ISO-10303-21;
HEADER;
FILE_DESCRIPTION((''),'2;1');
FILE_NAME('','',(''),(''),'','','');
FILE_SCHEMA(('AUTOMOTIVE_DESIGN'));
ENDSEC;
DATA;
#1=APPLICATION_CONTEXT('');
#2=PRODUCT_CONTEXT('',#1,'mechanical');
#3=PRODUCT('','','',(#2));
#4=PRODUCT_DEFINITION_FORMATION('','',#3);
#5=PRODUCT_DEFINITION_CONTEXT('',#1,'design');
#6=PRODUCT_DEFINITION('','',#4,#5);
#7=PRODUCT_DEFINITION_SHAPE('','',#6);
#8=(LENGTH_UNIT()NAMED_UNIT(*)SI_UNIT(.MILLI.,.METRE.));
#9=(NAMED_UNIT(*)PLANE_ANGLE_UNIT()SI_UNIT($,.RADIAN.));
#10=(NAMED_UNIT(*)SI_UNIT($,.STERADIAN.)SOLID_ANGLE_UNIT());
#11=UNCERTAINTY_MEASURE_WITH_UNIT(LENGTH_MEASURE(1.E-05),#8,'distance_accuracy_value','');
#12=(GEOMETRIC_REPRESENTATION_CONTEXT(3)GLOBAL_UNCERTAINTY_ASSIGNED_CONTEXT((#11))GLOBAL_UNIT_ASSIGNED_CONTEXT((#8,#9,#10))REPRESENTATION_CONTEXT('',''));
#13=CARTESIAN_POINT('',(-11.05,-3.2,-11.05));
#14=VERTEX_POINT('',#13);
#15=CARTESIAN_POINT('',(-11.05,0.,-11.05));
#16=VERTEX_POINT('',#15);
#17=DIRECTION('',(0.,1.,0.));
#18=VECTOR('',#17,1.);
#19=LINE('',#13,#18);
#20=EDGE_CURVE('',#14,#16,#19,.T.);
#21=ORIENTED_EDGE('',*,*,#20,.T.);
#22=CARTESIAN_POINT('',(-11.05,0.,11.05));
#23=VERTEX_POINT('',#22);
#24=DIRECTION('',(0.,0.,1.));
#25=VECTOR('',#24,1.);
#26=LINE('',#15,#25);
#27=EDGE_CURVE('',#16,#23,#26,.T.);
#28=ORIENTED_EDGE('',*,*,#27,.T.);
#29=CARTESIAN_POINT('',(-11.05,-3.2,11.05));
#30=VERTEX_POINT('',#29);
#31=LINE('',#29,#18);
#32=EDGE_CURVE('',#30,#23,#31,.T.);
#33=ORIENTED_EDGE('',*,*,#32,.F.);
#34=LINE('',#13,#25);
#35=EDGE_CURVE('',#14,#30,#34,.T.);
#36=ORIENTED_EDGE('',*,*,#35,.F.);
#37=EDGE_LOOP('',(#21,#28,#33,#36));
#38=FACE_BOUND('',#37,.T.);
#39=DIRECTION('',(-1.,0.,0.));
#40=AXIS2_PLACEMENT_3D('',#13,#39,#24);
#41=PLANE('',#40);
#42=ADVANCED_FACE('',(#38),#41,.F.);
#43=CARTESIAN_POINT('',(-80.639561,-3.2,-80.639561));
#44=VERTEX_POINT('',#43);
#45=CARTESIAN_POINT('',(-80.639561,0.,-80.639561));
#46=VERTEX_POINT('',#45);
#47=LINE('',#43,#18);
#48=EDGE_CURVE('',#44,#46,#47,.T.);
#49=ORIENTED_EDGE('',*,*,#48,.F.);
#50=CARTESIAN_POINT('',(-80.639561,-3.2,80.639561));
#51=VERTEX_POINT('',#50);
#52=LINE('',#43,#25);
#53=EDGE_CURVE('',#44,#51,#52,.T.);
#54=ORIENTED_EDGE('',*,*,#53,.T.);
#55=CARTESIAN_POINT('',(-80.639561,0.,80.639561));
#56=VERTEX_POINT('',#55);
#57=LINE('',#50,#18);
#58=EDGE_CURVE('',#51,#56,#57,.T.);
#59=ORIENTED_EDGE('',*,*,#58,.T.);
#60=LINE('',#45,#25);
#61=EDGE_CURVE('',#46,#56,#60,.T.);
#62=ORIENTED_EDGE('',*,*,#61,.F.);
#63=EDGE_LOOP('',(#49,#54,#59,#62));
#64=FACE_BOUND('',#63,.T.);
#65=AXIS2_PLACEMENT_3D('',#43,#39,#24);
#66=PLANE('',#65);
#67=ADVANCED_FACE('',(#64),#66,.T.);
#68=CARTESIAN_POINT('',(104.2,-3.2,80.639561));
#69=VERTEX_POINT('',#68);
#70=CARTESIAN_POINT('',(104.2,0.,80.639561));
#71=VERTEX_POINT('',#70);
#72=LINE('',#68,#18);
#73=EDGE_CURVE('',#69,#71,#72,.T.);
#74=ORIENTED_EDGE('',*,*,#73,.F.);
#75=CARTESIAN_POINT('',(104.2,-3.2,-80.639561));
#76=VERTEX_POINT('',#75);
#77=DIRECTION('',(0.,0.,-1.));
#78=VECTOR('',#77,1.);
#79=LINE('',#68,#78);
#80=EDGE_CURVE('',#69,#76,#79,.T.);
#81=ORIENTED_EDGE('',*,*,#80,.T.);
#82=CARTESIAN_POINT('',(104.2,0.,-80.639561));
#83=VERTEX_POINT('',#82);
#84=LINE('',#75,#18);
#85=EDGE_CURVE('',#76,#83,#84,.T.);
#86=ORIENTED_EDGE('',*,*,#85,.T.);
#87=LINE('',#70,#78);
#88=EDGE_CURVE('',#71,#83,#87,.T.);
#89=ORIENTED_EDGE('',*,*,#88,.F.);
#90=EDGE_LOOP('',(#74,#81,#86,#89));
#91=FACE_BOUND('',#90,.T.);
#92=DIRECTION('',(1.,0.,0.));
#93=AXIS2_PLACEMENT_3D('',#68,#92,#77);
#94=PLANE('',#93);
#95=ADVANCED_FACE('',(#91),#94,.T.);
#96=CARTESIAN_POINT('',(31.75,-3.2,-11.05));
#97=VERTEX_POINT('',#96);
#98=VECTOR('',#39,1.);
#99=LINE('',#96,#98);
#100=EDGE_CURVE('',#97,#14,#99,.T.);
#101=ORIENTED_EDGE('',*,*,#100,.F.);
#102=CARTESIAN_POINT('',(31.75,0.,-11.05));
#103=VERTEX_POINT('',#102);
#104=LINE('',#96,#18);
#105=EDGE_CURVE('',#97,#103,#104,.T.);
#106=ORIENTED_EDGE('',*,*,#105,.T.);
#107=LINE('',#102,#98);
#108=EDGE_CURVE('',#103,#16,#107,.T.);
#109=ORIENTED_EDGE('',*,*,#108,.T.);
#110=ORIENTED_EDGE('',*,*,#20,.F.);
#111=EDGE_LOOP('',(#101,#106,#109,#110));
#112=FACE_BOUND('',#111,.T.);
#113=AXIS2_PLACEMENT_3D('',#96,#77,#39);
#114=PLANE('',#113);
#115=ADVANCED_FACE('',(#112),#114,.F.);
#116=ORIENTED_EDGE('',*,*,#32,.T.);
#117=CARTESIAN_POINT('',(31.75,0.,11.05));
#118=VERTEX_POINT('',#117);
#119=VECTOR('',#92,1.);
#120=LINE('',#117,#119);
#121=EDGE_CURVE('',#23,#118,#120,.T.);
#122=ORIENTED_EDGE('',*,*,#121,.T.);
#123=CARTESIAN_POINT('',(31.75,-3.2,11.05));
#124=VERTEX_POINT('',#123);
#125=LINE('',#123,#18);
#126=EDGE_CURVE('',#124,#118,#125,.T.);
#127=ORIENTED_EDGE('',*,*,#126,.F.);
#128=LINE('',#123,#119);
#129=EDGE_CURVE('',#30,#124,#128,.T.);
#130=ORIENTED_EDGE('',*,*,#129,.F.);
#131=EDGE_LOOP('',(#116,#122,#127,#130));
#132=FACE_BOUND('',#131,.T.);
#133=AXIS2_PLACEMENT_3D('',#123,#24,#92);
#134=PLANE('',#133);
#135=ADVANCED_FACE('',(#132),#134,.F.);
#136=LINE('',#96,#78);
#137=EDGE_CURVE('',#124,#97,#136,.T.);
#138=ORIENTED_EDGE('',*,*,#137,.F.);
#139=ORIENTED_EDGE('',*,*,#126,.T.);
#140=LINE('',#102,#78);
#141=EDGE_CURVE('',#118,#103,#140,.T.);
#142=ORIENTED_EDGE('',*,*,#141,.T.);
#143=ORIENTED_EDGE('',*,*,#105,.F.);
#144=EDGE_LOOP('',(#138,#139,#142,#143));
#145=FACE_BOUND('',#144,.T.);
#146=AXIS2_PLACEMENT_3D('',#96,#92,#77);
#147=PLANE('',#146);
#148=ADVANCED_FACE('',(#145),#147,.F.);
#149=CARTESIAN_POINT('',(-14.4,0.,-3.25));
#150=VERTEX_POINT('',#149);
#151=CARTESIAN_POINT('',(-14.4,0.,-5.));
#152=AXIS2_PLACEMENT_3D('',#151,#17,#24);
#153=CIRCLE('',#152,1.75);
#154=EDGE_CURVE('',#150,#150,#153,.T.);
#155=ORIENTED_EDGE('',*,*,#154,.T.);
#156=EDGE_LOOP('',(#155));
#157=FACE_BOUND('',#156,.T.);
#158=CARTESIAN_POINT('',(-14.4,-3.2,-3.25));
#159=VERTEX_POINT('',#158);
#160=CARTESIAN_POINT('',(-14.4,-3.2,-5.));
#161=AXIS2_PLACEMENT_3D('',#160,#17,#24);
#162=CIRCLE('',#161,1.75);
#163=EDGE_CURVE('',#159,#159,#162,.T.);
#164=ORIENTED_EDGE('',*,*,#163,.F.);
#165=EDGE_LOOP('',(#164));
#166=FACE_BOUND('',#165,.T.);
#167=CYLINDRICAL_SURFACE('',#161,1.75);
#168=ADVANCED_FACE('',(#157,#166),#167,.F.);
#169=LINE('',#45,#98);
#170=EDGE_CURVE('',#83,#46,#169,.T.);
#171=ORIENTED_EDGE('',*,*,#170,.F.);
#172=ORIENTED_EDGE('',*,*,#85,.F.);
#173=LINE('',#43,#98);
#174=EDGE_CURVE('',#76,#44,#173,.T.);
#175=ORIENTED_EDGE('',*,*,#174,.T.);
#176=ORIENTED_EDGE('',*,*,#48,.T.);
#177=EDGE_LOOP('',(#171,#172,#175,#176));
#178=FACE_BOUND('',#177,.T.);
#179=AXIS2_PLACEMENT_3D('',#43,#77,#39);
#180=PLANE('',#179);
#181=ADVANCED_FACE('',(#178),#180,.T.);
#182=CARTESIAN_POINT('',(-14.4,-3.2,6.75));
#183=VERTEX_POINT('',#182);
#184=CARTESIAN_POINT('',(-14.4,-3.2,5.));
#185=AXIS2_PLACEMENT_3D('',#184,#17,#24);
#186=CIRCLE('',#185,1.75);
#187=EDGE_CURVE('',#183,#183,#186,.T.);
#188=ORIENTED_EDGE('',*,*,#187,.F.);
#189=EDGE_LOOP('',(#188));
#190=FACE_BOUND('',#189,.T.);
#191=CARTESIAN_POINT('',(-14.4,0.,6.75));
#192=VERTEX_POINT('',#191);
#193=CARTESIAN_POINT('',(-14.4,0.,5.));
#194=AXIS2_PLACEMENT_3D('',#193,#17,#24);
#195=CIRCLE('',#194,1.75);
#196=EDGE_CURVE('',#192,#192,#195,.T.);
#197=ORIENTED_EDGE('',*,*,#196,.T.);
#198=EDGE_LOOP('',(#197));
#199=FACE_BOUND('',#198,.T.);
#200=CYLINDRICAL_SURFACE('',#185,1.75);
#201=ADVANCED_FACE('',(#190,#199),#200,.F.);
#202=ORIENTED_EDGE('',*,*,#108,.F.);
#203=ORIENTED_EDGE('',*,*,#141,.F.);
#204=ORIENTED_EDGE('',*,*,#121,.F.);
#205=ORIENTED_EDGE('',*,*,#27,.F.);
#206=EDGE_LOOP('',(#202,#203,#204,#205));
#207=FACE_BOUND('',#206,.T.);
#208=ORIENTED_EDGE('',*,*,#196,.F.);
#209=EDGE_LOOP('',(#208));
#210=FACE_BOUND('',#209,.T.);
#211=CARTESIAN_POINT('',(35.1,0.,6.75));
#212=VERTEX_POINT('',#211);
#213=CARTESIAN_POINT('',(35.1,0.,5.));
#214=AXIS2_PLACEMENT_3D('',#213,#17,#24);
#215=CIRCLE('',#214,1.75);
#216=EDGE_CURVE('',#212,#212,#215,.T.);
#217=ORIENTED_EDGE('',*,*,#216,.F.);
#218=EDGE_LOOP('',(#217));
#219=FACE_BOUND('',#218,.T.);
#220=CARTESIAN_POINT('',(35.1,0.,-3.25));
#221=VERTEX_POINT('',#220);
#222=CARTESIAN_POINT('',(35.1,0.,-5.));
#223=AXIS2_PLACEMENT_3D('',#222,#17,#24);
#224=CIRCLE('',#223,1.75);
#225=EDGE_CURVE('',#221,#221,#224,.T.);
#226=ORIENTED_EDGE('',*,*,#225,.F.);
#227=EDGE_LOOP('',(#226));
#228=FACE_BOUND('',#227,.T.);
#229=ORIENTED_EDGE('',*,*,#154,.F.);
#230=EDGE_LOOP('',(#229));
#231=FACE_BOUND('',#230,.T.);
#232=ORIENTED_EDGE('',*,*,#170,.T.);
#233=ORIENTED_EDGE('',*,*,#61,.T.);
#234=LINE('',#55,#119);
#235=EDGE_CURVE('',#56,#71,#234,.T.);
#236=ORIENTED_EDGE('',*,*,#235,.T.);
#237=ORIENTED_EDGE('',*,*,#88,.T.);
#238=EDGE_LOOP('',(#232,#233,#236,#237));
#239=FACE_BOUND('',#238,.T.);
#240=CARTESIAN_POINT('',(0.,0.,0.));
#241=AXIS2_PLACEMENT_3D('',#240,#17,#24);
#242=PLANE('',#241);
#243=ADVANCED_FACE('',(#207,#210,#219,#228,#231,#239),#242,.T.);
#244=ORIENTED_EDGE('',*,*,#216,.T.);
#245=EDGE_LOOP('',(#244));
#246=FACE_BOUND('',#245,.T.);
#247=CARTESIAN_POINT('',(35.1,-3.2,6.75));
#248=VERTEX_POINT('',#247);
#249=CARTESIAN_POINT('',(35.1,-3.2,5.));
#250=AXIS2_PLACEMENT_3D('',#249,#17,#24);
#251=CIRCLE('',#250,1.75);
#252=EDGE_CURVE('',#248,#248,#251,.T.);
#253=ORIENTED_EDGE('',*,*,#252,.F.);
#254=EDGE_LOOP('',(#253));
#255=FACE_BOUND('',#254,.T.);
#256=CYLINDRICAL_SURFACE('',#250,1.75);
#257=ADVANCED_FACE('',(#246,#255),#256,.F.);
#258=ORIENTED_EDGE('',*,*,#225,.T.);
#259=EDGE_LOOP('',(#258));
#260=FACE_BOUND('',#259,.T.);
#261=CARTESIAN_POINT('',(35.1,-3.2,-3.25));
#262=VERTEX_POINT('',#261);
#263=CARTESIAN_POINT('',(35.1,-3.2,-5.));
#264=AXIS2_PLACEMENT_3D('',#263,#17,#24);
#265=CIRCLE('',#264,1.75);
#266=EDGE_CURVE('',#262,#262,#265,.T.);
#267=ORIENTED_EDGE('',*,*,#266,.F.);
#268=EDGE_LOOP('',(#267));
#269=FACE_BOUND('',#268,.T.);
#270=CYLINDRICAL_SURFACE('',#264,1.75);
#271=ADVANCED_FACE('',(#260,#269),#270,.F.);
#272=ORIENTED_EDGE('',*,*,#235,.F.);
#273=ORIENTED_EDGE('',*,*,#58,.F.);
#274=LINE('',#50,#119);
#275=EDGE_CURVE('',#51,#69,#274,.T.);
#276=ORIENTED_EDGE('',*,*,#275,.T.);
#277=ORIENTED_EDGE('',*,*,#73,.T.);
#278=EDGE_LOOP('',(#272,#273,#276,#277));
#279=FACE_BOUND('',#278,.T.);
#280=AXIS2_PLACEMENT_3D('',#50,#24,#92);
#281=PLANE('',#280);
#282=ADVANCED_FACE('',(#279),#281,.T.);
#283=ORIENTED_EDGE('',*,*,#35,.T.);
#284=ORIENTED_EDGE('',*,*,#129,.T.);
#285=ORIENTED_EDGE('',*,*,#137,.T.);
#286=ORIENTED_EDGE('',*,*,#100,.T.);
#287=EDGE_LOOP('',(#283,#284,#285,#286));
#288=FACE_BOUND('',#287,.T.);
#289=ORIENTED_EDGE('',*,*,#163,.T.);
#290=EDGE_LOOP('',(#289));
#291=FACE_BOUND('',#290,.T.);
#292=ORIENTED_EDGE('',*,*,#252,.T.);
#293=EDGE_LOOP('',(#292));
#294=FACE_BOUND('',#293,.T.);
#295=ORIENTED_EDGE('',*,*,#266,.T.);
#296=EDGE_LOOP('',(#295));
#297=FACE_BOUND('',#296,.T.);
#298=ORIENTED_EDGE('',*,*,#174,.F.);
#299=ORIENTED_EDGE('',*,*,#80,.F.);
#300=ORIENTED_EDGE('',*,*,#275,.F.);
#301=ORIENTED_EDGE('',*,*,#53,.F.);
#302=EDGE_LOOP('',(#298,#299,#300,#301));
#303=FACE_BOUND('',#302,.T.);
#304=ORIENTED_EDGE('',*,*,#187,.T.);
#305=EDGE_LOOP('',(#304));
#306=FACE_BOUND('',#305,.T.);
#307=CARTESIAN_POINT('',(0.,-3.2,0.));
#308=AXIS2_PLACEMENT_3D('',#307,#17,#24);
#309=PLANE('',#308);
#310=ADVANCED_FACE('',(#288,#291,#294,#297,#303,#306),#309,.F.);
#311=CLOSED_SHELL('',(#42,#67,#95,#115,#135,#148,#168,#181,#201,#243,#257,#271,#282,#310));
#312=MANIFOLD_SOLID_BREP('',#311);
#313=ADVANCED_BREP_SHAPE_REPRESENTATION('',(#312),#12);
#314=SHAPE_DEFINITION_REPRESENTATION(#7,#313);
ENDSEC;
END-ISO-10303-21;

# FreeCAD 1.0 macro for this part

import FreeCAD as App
import Part
import Sketcher
Q = App.Units.Quantity

doc = App.newDocument("Part")
body = doc.addObject("PartDesign::Body", "Body")

sketch1 = body.newObject("Sketcher::SketchObject", "Sketch")
sketch1.AttachmentSupport = (doc.getObject("XZ_Plane"), [""])
sketch1.MapMode = "FlatFace"
sketch1.addGeometry(Part.LineSegment(App.Vector(-80.6, -80.6, 0), App.Vector(-80.6, 80.6, 0)), False)
sketch1.addGeometry(Part.LineSegment(App.Vector(-80.6, 80.6, 0), App.Vector(104.2, 80.6, 0)), False)
sketch1.addGeometry(Part.LineSegment(App.Vector(104.2, 80.6, 0), App.Vector(104.2, -80.6, 0)), False)
sketch1.addGeometry(Part.LineSegment(App.Vector(104.2, -80.6, 0), App.Vector(-80.6, -80.6, 0)), False)
sketch1.addGeometry(Part.Circle(App.Vector(-14.4, 5, 0), App.Vector(0, 0, 1), 1.8), False)
sketch1.addGeometry(Part.Circle(App.Vector(35.1, 5, 0), App.Vector(0, 0, 1), 1.8), False)
sketch1.addGeometry(Part.Circle(App.Vector(-14.4, -5, 0), App.Vector(0, 0, 1), 1.8), False)
sketch1.addGeometry(Part.LineSegment(App.Vector(31.8, 11.1, 0), App.Vector(-11.1, 11.1, 0)), False)
sketch1.addGeometry(Part.LineSegment(App.Vector(-11.1, 11.1, 0), App.Vector(-11.1, -11.1, 0)), False)
sketch1.addGeometry(Part.LineSegment(App.Vector(-11.1, -11.1, 0), App.Vector(31.8, -11.1, 0)), False)
sketch1.addGeometry(Part.LineSegment(App.Vector(31.8, -11.1, 0), App.Vector(31.8, 11.1, 0)), False)
sketch1.addGeometry(Part.Circle(App.Vector(35.1, -5, 0), App.Vector(0, 0, 1), 1.8), False)
sketch1.addConstraint(Sketcher.Constraint("Coincident", 0, 2, 1, 1))
sketch1.addConstraint(Sketcher.Constraint("Coincident", 1, 2, 2, 1))
sketch1.addConstraint(Sketcher.Constraint("Coincident", 2, 2, 3, 1))
sketch1.addConstraint(Sketcher.Constraint("Coincident", 3, 2, 0, 1))
sketch1.addConstraint(Sketcher.Constraint("Coincident", 7, 2, 8, 1))
sketch1.addConstraint(Sketcher.Constraint("Coincident", 8, 2, 9, 1))
sketch1.addConstraint(Sketcher.Constraint("Coincident", 9, 2, 10, 1))
sketch1.addConstraint(Sketcher.Constraint("Coincident", 10, 2, 7, 1))
sketch1.addConstraint(Sketcher.Constraint("Vertical", 0))
sketch1.addConstraint(Sketcher.Constraint("Horizontal", 1))
sketch1.addConstraint(Sketcher.Constraint("Vertical", 2))
sketch1.addConstraint(Sketcher.Constraint("Horizontal", 3))
sketch1.addConstraint(Sketcher.Constraint("Horizontal", 7))
sketch1.addConstraint(Sketcher.Constraint("Vertical", 8))
sketch1.addConstraint(Sketcher.Constraint("Horizontal", 9))
sketch1.addConstraint(Sketcher.Constraint("Vertical", 10))
sketch1.addConstraint(Sketcher.Constraint("Equal", 4, 5))
sketch1.addConstraint(Sketcher.Constraint("Equal", 5, 6))
sketch1.addConstraint(Sketcher.Constraint("Equal", 6, 11))
sketch1.addConstraint(Sketcher.Constraint("Symmetric", 4, 3, 6, 3, -1))
sketch1.addConstraint(Sketcher.Constraint("Symmetric", 5, 3, 11, 3, -1))
sketch1.addConstraint(Sketcher.Constraint("Horizontal", 4, 3, 5, 3))
sketch1.addConstraint(Sketcher.Constraint("Diameter", 4, Q("3.5 mm")))
sketch1.addConstraint(Sketcher.Constraint("DistanceX", 7, 2, 7, 1, Q("42.8 mm")))
sketch1.addConstraint(Sketcher.Constraint("DistanceY", 8, 2, 8, 1, Q("22.1 mm")))
sketch1.addConstraint(Sketcher.Constraint("DistanceY", -1, 1, 4, 3, Q("5 mm")))
sketch1.addConstraint(Sketcher.Constraint("DistanceX", 4, 3, -1, 1, Q("14.4 mm")))
sketch1.addConstraint(Sketcher.Constraint("DistanceX", -1, 1, 5, 3, Q("35.1 mm")))
sketch1.addConstraint(Sketcher.Constraint("DistanceX", -1, 1, 1, 2, Q("104.2 mm")))
sketch1.addConstraint(Sketcher.Constraint("DistanceX", 7, 2, -1, 1, Q("11.05 mm")))
sketch1.addConstraint(Sketcher.Constraint("DistanceY", -1, 1, 7, 2, Q("11.05 mm")))
sketch1.addConstraint(Sketcher.Constraint("DistanceX", 1, 1, 1, 2, Q("184.839561 mm")))
sketch1.addConstraint(Sketcher.Constraint("DistanceY", 0, 1, 0, 2, Q("161.279122 mm")))
sketch1.addConstraint(Sketcher.Constraint("DistanceY", -1, 1, 0, 2, Q("80.639561 mm")))
pad1 = body.newObject("PartDesign::Pad", "Pad")
pad1.Profile = sketch1
pad1.Length = 3.2

doc.recompute()
